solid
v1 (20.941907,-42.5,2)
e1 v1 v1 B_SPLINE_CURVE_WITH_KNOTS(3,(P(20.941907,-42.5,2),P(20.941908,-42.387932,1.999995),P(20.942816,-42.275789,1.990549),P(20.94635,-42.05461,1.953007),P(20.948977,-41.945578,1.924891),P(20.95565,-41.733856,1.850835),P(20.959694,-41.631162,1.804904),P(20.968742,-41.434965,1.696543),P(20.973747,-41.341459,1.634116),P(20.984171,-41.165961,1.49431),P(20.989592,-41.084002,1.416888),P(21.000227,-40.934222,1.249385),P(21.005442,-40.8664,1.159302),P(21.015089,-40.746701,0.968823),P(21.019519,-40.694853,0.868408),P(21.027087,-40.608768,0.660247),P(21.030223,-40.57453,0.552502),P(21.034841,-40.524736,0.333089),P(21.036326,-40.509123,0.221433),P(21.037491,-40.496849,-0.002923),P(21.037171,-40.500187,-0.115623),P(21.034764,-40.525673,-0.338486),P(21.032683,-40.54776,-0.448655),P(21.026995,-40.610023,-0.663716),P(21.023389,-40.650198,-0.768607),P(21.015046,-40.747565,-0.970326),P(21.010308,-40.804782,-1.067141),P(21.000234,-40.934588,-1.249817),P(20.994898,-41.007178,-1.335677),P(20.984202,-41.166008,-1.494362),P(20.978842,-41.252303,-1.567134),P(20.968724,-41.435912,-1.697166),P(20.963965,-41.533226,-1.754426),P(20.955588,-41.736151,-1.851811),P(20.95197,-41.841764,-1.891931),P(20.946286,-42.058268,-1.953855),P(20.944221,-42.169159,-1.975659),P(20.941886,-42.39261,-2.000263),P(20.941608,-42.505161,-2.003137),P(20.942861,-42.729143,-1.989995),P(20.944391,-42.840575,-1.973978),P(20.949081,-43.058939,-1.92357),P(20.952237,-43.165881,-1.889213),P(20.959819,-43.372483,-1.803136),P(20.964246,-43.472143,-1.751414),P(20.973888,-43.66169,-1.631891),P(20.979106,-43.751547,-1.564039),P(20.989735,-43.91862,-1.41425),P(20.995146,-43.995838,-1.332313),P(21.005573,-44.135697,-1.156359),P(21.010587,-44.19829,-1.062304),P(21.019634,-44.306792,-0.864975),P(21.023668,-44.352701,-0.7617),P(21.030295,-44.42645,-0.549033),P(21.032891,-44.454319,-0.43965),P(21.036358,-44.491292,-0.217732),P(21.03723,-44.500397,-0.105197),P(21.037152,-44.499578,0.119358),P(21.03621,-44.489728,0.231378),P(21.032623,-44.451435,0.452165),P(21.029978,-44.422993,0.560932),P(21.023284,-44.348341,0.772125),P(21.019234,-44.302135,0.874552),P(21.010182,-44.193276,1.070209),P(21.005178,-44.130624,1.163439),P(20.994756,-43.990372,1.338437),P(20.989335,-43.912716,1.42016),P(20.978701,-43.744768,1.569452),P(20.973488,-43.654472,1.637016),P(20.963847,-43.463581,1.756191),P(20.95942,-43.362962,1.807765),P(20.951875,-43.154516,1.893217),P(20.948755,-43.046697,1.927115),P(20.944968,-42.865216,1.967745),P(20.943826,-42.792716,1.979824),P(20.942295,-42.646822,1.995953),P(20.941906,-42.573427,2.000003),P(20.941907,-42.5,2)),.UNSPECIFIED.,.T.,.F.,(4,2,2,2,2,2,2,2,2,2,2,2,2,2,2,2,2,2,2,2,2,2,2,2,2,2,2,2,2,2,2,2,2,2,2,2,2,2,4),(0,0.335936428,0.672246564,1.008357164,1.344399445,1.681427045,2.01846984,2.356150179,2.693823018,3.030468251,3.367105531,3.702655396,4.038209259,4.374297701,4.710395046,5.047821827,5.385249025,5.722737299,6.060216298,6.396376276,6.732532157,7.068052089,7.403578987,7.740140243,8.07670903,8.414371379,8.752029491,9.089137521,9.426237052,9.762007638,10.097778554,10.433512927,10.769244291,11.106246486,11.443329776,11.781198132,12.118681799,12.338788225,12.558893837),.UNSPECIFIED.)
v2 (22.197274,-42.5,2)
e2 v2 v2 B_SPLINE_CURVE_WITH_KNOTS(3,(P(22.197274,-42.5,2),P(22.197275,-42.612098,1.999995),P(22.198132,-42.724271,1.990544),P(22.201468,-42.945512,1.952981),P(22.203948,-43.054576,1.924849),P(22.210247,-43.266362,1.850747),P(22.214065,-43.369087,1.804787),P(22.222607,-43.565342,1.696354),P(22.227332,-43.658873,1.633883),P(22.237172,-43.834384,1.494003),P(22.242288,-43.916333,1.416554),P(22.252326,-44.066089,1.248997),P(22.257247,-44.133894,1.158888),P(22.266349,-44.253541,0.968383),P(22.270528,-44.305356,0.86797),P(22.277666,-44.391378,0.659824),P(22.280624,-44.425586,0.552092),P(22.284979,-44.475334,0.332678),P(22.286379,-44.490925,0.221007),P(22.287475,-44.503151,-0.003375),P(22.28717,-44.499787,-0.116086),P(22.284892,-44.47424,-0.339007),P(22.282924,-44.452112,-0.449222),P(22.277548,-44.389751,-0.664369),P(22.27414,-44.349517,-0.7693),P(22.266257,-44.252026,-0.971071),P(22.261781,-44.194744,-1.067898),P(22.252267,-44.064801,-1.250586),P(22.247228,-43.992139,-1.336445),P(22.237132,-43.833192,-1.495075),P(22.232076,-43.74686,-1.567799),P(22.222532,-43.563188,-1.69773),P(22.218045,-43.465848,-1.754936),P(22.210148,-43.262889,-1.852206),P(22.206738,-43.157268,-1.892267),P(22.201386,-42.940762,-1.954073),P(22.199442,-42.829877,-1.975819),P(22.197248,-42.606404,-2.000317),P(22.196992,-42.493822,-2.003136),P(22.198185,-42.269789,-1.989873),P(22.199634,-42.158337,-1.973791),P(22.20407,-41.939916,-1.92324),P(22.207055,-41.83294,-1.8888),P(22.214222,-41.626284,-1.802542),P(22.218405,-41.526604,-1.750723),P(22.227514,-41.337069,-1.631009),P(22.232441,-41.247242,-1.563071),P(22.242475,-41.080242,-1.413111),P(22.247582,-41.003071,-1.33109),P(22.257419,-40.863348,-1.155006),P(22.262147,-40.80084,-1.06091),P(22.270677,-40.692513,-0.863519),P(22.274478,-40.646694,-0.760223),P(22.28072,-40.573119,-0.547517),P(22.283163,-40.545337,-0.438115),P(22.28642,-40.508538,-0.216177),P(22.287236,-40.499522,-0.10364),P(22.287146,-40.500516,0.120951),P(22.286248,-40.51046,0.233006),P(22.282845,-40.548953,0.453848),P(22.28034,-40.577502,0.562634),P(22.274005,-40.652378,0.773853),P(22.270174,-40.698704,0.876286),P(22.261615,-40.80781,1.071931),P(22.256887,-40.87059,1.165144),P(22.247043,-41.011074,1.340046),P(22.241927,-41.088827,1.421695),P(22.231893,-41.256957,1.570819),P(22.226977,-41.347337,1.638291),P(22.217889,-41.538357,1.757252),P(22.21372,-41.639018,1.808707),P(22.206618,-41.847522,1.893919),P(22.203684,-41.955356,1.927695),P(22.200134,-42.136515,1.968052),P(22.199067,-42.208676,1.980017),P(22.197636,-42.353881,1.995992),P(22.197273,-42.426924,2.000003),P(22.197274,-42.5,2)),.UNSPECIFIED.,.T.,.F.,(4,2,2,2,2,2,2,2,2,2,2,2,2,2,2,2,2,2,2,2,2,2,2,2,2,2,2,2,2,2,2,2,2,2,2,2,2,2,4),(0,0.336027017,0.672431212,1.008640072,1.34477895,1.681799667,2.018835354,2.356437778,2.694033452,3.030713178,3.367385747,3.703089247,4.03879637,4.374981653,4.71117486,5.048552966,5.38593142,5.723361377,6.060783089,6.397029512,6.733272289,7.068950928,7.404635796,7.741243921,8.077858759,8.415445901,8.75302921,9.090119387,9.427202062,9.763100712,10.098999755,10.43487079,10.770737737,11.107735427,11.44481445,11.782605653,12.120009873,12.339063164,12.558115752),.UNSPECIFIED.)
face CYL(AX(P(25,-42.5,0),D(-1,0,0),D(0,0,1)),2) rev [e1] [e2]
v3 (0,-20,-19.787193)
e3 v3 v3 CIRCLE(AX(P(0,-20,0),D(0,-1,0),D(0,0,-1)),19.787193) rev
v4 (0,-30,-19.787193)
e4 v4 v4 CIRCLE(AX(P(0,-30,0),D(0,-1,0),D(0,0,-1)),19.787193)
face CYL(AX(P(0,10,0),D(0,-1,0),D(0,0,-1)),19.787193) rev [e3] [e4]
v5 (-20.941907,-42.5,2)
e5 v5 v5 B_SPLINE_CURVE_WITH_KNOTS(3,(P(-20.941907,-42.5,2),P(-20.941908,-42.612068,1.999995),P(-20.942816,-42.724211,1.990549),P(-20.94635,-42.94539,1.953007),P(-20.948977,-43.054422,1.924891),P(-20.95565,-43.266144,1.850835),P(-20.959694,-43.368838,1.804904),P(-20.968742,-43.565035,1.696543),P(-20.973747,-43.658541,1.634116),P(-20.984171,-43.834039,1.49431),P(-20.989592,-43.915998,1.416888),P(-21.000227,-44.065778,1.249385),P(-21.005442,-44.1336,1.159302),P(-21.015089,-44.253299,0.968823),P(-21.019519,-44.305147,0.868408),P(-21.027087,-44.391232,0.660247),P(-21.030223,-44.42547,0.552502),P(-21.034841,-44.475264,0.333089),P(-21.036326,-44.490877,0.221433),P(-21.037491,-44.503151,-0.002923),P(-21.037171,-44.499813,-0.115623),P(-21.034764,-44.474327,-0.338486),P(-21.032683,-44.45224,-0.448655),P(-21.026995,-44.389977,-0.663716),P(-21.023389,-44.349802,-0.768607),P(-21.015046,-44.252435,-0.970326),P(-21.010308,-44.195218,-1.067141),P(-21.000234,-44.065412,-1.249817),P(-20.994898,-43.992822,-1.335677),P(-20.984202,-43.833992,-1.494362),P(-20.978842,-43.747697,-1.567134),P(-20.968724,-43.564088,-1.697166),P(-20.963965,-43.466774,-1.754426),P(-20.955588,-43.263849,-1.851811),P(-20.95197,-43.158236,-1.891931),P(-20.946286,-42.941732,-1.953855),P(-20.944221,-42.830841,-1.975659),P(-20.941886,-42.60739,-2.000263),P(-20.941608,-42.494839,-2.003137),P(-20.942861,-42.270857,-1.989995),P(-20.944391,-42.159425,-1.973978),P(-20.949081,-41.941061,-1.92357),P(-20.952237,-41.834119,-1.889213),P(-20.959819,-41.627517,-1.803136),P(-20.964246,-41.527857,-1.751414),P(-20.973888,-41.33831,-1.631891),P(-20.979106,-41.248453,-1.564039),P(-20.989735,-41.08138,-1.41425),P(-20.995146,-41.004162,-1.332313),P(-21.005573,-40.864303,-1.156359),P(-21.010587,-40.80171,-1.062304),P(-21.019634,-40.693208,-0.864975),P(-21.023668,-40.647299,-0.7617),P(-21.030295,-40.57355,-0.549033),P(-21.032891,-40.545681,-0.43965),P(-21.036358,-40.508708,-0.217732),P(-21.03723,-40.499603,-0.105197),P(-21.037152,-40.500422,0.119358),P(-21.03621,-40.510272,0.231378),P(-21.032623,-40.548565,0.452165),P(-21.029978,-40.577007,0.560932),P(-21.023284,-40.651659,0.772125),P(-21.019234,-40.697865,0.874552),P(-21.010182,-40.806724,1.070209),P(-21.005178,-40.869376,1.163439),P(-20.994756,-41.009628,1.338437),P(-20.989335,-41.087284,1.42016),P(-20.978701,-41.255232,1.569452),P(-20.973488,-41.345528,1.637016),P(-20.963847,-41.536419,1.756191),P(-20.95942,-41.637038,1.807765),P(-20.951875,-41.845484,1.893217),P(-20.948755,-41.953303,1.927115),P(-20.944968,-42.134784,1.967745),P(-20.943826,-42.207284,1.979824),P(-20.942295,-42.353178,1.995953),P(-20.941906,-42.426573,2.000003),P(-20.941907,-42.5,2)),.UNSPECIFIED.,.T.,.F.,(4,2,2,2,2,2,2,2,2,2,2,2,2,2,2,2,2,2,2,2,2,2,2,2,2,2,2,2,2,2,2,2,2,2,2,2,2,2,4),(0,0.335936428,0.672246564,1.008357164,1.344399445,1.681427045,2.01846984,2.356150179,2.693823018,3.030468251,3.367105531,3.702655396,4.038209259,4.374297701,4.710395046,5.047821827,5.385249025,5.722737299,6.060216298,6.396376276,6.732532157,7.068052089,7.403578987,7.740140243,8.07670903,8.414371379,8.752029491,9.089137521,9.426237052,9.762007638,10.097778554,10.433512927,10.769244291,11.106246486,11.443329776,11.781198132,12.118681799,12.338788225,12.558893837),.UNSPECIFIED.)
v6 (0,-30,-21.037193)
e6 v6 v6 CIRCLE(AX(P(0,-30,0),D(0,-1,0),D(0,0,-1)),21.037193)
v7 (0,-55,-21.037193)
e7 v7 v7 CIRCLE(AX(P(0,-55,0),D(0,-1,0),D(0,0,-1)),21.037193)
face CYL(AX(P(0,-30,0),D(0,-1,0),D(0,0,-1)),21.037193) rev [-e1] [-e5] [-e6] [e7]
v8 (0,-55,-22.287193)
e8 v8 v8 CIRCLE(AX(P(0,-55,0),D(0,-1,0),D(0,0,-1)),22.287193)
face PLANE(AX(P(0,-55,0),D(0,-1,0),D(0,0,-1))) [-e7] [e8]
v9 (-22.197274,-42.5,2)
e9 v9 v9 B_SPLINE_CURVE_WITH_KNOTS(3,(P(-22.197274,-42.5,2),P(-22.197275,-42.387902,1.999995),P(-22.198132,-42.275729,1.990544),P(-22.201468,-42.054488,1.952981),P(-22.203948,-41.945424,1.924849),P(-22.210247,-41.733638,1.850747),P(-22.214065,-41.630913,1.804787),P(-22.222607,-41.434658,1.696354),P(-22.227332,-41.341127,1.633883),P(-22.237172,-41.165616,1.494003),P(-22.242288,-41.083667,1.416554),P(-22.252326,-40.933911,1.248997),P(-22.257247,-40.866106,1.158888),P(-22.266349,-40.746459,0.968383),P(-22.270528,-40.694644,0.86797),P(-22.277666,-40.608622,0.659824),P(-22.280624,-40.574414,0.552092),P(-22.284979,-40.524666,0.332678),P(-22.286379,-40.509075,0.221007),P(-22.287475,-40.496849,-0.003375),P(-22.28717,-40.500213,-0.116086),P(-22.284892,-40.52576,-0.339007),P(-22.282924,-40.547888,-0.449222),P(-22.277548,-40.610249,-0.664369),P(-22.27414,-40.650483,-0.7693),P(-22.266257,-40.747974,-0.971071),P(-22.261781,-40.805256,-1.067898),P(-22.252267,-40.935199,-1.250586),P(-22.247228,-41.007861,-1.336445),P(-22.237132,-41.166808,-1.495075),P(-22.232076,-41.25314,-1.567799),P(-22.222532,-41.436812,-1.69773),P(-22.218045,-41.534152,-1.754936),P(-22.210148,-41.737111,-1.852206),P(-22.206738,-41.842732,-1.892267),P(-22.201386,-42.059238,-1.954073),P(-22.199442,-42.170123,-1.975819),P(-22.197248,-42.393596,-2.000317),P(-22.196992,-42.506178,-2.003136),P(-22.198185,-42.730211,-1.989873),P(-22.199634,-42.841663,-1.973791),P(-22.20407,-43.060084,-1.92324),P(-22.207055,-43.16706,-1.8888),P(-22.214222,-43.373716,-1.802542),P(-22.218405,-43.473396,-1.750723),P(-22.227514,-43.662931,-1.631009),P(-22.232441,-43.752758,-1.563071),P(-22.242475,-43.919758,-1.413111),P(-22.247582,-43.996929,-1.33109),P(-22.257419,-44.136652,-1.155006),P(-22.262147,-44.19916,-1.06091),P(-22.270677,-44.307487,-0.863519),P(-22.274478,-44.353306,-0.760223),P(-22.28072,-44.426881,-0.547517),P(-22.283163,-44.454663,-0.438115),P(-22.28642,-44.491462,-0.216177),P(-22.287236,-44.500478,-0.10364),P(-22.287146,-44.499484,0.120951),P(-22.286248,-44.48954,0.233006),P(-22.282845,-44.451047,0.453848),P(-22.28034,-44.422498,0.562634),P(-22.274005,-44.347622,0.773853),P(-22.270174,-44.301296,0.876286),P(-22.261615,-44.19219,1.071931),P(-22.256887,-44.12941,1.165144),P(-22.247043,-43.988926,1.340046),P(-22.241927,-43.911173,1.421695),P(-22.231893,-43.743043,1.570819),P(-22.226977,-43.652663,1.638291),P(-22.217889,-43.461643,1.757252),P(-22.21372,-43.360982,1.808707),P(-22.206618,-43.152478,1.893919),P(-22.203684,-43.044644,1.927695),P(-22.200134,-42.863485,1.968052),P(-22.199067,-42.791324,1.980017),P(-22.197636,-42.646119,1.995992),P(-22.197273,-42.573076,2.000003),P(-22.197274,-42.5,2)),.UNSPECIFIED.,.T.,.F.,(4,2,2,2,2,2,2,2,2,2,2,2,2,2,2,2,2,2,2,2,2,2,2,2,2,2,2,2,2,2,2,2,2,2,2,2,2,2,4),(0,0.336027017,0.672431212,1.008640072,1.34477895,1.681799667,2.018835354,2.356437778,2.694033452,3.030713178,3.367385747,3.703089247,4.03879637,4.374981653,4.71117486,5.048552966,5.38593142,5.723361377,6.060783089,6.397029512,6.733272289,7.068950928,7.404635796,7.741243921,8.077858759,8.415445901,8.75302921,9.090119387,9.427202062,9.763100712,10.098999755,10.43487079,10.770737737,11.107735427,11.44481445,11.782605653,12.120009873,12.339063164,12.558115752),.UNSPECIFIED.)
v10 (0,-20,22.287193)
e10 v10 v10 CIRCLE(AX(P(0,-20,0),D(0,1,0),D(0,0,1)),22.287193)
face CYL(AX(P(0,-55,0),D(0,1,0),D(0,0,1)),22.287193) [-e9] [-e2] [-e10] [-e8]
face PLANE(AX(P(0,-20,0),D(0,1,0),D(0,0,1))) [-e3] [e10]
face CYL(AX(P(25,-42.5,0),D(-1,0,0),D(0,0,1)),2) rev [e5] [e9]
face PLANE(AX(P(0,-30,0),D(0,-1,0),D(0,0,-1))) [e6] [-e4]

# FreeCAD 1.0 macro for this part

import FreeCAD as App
import Part
import Sketcher
from FreeCAD import Vector

doc = App.newDocument("Part")
body = doc.addObject("PartDesign::Body", "Body")

sketch1 = body.newObject("Sketcher::SketchObject", "Sketch")
sketch1.AttachmentSupport = (doc.getObject("XZ_Plane"), [""])
sketch1.MapMode = "FlatFace"
sketch1.addGeometry(Part.Circle(Vector(0, 0, 0), Vector(0, 0, 1), 34), False)
sketch1.addConstraint([
    Sketcher.Constraint("Coincident", 0, 3, -1, 1),
    Sketcher.Constraint("Diameter", 0, 68.0),
])
pad1 = body.newObject("PartDesign::Pad", "Pad")
pad1.Profile = sketch1
pad1.Length = 10
pad1.Reversed = True

sketch2 = body.newObject("Sketcher::SketchObject", "Sketch001")
sketch2.AttachmentSupport = (doc.getObject("XZ_Plane"), [""])
sketch2.MapMode = "FlatFace"
sketch2.addGeometry([
    Part.Circle(Vector(0, 0, 0), Vector(0, 0, 1), 19.8),
    Part.Circle(Vector(-22.1, 12.5, 0), Vector(0, 0, 1), 2),
    Part.Circle(Vector(22.1, 12.5, 0), Vector(0, 0, 1), 2),
    Part.Circle(Vector(22.1, -12.5, 0), Vector(0, 0, 1), 2),
    Part.Circle(Vector(-22.1, -12.5, 0), Vector(0, 0, 1), 2),
], False)
sketch2.addConstraint([
    Sketcher.Constraint("Coincident", 0, 3, -1, 1),
    Sketcher.Constraint("Equal", 1, 2),
    Sketcher.Constraint("Equal", 2, 3),
    Sketcher.Constraint("Equal", 3, 4),
    Sketcher.Constraint("Symmetric", 1, 3, 3, 3, -1, 1),
    Sketcher.Constraint("Symmetric", 2, 3, 4, 3, -1, 1),
    Sketcher.Constraint("Symmetric", 1, 3, 2, 3, -2),
    Sketcher.Constraint("Diameter", 1, 4.0),
    Sketcher.Constraint("DistanceY", 3, 3, 2, 3, 25.0),
    Sketcher.Constraint("DistanceX", 1, 3, -1, 1, 22.1),
    Sketcher.Constraint("Diameter", 0, 39.574385),
])
pocket1 = body.newObject("PartDesign::Pocket", "Pocket")
pocket1.Profile = sketch2
pocket1.Length = 10

sketch3 = body.newObject("Sketcher::SketchObject", "Sketch002")
sketch3.AttachmentSupport = (doc.getObject("YZ_Plane"), [""])
sketch3.MapMode = "FlatFace"
sketch3.addGeometry(Part.Circle(Vector(5, 34, 0), Vector(0, 0, 1), 4.8), False)
sketch3.addConstraint([
    Sketcher.Constraint("DistanceX", -1, 1, 0, 3, 5.0),
    Sketcher.Constraint("DistanceY", -1, 1, 0, 3, 34.0),
    Sketcher.Constraint("Diameter", 0, 9.675063),
])
groove = body.newObject("PartDesign::Groove", "Groove")
groove.Profile = sketch3
groove.ReferenceAxis = (sketch3, ["H_Axis"])
groove.Angle = 360

sketch4 = body.newObject("Sketcher::SketchObject", "Sketch003")
sketch4.AttachmentSupport = (doc.getObject("YZ_Plane"), [""])
sketch4.MapMode = "FlatFace"
sketch4.addGeometry([
    Part.LineSegment(Vector(5, 34, 0), Vector(0.2, 34, 0)),
    Part.LineSegment(Vector(0.2, 34, 0), Vector(0.2, 29.2, 0)),
    Part.LineSegment(Vector(0.2, 29.2, 0), Vector(5, 29.2, 0)),
    Part.LineSegment(Vector(5, 29.2, 0), Vector(5, 34, 0)),
], False)
sketch4.addConstraint([
    Sketcher.Constraint("Coincident", 0, 2, 1, 1),
    Sketcher.Constraint("Coincident", 1, 2, 2, 1),
    Sketcher.Constraint("Coincident", 2, 2, 3, 1),
    Sketcher.Constraint("Coincident", 3, 2, 0, 1),
    Sketcher.Constraint("Horizontal", 0),
    Sketcher.Constraint("Vertical", 1),
    Sketcher.Constraint("Horizontal", 2),
    Sketcher.Constraint("Vertical", 3),
    Sketcher.Constraint("Equal", 2, 1),
    Sketcher.Constraint("DistanceY", -1, 1, 0, 2, 34.0),
    Sketcher.Constraint("DistanceX", -1, 1, 2, 2, 5.0),
    Sketcher.Constraint("DistanceX", 0, 2, 0, 1, 4.837531),
])
groove2 = body.newObject("PartDesign::Groove", "Groove001")
groove2.Profile = sketch4
groove2.ReferenceAxis = (sketch4, ["H_Axis"])
groove2.Angle = 360

sketch5 = body.newObject("Sketcher::SketchObject", "Sketch004")
sketch5.AttachmentSupport = (doc.getObject("YZ_Plane"), [""])
sketch5.MapMode = "FlatFace"
sketch5.addGeometry([
    Part.LineSegment(Vector(5, 37, 0), Vector(-4, 37, 0)),
    Part.LineSegment(Vector(-4, 37, 0), Vector(-4, -35, 0)),
    Part.LineSegment(Vector(-4, -35, 0), Vector(5, -35, 0)),
    Part.LineSegment(Vector(5, -35, 0), Vector(5, 37, 0)),
], False)
sketch5.addConstraint([
    Sketcher.Constraint("Coincident", 0, 2, 1, 1),
    Sketcher.Constraint("Coincident", 1, 2, 2, 1),
    Sketcher.Constraint("Coincident", 2, 2, 3, 1),
    Sketcher.Constraint("Coincident", 3, 2, 0, 1),
    Sketcher.Constraint("Horizontal", 0),
    Sketcher.Constraint("Vertical", 1),
    Sketcher.Constraint("Horizontal", 2),
    Sketcher.Constraint("Vertical", 3),
    Sketcher.Constraint("DistanceX", -1, 1, 2, 2, 5.0),
    Sketcher.Constraint("DistanceX", 0, 2, 0, 1, 8.896778),
    Sketcher.Constraint("DistanceY", 1, 2, 1, 1, 72.361657),
    Sketcher.Constraint("DistanceY", -1, 1, 0, 2, 37.08213),
])
pocket2 = body.newObject("PartDesign::Pocket", "Pocket001")
pocket2.Profile = sketch5
pocket2.Type = "ThroughAll"
pocket2.Midplane = True

sketch6 = body.newObject("Sketcher::SketchObject", "Sketch005")
sketch6.AttachmentSupport = (doc.getObject("XZ_Plane"), [""])
sketch6.MapMode = "FlatFace"
sketch6.AttachmentOffset = App.Placement(Vector(0, 0, 55), App.Rotation())
sketch6.addGeometry([
    Part.Circle(Vector(0, 0, 0), Vector(0, 0, 1), 22),
    Part.Circle(Vector(0, 0, 0), Vector(0, 0, 1), 20),
], False)
sketch6.addConstraint([
    Sketcher.Constraint("Coincident", 0, 3, -1, 1),
    Sketcher.Constraint("Coincident", 1, 3, -1, 1),
    Sketcher.Constraint("Diameter", 0, 44.574385),
    Sketcher.Constraint("Diameter", 1, 39.574385),
])
pad2 = body.newObject("PartDesign::Pad", "Pad001")
pad2.Profile = sketch6
pad2.Length = 60
pad2.Reversed = True

sketch7 = body.newObject("Sketcher::SketchObject", "Sketch006")
sketch7.AttachmentSupport = (doc.getObject("XZ_Plane"), [""])
sketch7.MapMode = "FlatFace"
sketch7.AttachmentOffset = App.Placement(Vector(0, 0, 55), App.Rotation())
sketch7.addGeometry([
    Part.Circle(Vector(0, 0, 0), Vector(0, 0, 1), 21),
    Part.Circle(Vector(0, 0, 0), Vector(0, 0, 1), 20),
], False)
sketch7.addConstraint([
    Sketcher.Constraint("Coincident", 0, 3, -1, 1),
    Sketcher.Constraint("Coincident", 1, 3, -1, 1),
    Sketcher.Constraint("Diameter", 0, 42.074385),
    Sketcher.Constraint("Diameter", 1, 39.574385),
])
pocket3 = body.newObject("PartDesign::Pocket", "Pocket002")
pocket3.Profile = sketch7
pocket3.Length = 25

sketch8 = body.newObject("Sketcher::SketchObject", "Sketch007")
sketch8.AttachmentSupport = (doc.getObject("YZ_Plane"), [""])
sketch8.MapMode = "FlatFace"
sketch8.addGeometry(Part.Circle(Vector(-42.5, 0, 0), Vector(0, 0, 1), 2), False)
sketch8.addConstraint([
    Sketcher.Constraint("PointOnObject", 0, 3, -1),
    Sketcher.Constraint("Diameter", 0, 4.0),
    Sketcher.Constraint("DistanceX", 0, 3, -1, 1, 42.5),
])
pocket4 = body.newObject("PartDesign::Pocket", "Pocket003")
pocket4.Profile = sketch8
pocket4.Type = "ThroughAll"
pocket4.Midplane = True

sketch9 = body.newObject("Sketcher::SketchObject", "Sketch008")
sketch9.AttachmentSupport = (doc.getObject("YZ_Plane"), [""])
sketch9.MapMode = "FlatFace"
sketch9.addGeometry([
    Part.LineSegment(Vector(11, 35, 0), Vector(5, 35, 0)),
    Part.LineSegment(Vector(5, 35, 0), Vector(5, -35, 0)),
    Part.LineSegment(Vector(5, -35, 0), Vector(11, -35, 0)),
    Part.LineSegment(Vector(11, -35, 0), Vector(11, 35, 0)),
], False)
sketch9.addConstraint([
    Sketcher.Constraint("Coincident", 0, 2, 1, 1),
    Sketcher.Constraint("Coincident", 1, 2, 2, 1),
    Sketcher.Constraint("Coincident", 2, 2, 3, 1),
    Sketcher.Constraint("Coincident", 3, 2, 0, 1),
    Sketcher.Constraint("Horizontal", 0),
    Sketcher.Constraint("Vertical", 1),
    Sketcher.Constraint("Horizontal", 2),
    Sketcher.Constraint("Vertical", 3),
    Sketcher.Constraint("DistanceX", -1, 1, 0, 2, 5.0),
    Sketcher.Constraint("DistanceX", 0, 2, 0, 1, 5.737808),
    Sketcher.Constraint("DistanceY", 1, 2, 1, 1, 69.351433),
    Sketcher.Constraint("DistanceY", 1, 2, -1, 1, 34.841629),
])
pocket5 = body.newObject("PartDesign::Pocket", "Pocket004")
pocket5.Profile = sketch9
pocket5.Type = "ThroughAll"
pocket5.Midplane = True

sketch10 = body.newObject("Sketcher::SketchObject", "Sketch009")
sketch10.AttachmentSupport = (doc.getObject("XZ_Plane"), [""])
sketch10.MapMode = "FlatFace"
sketch10.AttachmentOffset = App.Placement(Vector(0, 0, 20), App.Rotation())
sketch10.addGeometry([
    Part.Circle(Vector(0, 0, 0), Vector(0, 0, 1), 22),
    Part.Circle(Vector(0, 0, 0), Vector(0, 0, 1), 21),
], False)
sketch10.addConstraint([
    Sketcher.Constraint("Coincident", 0, 3, -1, 1),
    Sketcher.Constraint("Coincident", 1, 3, -1, 1),
    Sketcher.Constraint("Diameter", 0, 44.574385),
    Sketcher.Constraint("Diameter", 1, 42.074385),
])
pocket6 = body.newObject("PartDesign::Pocket", "Pocket005")
pocket6.Profile = sketch10
pocket6.Length = 25

sketch11 = body.newObject("Sketcher::SketchObject", "Sketch010")
sketch11.AttachmentSupport = (doc.getObject("YZ_Plane"), [""])
sketch11.MapMode = "FlatFace"
sketch11.addGeometry(Part.Circle(Vector(-7.5, 0, 0), Vector(0, 0, 1), 2), False)
sketch11.addConstraint([
    Sketcher.Constraint("PointOnObject", 0, 3, -1),
    Sketcher.Constraint("Diameter", 0, 4.0),
    Sketcher.Constraint("DistanceX", 0, 3, -1, 1, 7.5),
])
pocket7 = body.newObject("PartDesign::Pocket", "Pocket006")
pocket7.Profile = sketch11
pocket7.Type = "ThroughAll"
pocket7.Midplane = True

sketch12 = body.newObject("Sketcher::SketchObject", "Sketch011")
sketch12.AttachmentSupport = (doc.getObject("XY_Plane"), [""])
sketch12.MapMode = "FlatFace"
sketch12.addGeometry([
    Part.LineSegment(Vector(-21, 5, 0), Vector(-21, -20, 0)),
    Part.LineSegment(Vector(-21, -20, 0), Vector(21, -20, 0)),
    Part.LineSegment(Vector(21, -20, 0), Vector(21, 5, 0)),
    Part.LineSegment(Vector(21, 5, 0), Vector(-21, 5, 0)),
], False)
sketch12.addConstraint([
    Sketcher.Constraint("Coincident", 0, 2, 1, 1),
    Sketcher.Constraint("Coincident", 1, 2, 2, 1),
    Sketcher.Constraint("Coincident", 2, 2, 3, 1),
    Sketcher.Constraint("Coincident", 3, 2, 0, 1),
    Sketcher.Constraint("Vertical", 0),
    Sketcher.Constraint("Horizontal", 1),
    Sketcher.Constraint("Vertical", 2),
    Sketcher.Constraint("Horizontal", 3),
    Sketcher.Constraint("DistanceY", 0, 2, 0, 1, 25.0),
    Sketcher.Constraint("DistanceY", 0, 2, -1, 1, 20.0),
    Sketcher.Constraint("DistanceX", 1, 1, 1, 2, 42.074385),
    Sketcher.Constraint("DistanceX", 0, 2, -1, 1, 21.037193),
])
pocket8 = body.newObject("PartDesign::Pocket", "Pocket007")
pocket8.Profile = sketch12
pocket8.Type = "ThroughAll"
pocket8.Midplane = True

doc.recompute()
